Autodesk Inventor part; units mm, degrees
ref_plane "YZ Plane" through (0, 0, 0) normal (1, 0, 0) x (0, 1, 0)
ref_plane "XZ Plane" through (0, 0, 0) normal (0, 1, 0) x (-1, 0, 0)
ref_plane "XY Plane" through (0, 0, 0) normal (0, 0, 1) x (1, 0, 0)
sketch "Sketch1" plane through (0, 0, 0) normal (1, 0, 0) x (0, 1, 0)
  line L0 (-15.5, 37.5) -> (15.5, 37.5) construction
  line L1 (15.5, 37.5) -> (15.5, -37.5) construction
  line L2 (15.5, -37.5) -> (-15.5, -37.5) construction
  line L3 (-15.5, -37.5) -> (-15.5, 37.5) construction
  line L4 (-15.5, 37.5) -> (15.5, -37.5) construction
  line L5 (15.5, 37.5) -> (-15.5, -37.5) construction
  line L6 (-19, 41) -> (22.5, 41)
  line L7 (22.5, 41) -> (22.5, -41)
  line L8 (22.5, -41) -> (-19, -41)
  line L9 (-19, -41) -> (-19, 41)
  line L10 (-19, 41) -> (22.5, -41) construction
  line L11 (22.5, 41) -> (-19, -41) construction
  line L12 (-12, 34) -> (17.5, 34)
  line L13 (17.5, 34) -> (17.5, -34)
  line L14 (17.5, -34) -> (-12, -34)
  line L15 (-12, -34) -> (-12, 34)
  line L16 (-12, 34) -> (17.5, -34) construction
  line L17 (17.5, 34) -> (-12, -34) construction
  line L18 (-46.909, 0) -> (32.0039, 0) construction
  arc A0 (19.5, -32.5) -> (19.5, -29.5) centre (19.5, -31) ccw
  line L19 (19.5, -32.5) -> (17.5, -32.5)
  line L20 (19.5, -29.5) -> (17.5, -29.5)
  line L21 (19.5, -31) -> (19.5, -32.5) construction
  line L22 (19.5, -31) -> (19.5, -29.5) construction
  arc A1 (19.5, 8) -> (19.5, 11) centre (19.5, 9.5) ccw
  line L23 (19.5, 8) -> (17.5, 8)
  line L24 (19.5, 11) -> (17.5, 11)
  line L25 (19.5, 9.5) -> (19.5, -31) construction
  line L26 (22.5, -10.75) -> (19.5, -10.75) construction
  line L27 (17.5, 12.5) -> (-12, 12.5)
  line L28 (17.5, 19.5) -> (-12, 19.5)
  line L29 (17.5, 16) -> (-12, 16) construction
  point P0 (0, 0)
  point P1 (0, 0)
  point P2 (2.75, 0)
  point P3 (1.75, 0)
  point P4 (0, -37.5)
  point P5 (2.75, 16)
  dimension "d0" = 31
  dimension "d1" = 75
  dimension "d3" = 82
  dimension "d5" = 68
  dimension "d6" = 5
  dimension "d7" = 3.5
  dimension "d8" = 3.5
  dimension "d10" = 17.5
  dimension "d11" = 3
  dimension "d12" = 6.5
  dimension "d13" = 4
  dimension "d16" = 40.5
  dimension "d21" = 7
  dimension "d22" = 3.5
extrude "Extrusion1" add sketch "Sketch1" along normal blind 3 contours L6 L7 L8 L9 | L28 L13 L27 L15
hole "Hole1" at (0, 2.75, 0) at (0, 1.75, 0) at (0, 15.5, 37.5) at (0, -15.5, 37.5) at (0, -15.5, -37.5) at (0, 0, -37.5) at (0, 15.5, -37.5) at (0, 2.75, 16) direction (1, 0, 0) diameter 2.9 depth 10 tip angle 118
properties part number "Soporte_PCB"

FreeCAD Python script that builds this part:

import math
import FreeCAD as App
import Part
import Sketcher

V = App.Vector
Q = App.Units.Quantity

doc = App.newDocument("Part")
params = doc.addObject("Spreadsheet::Sheet", "Params")
for row, (alias, value) in enumerate([
    ("sketch1_radius", "1.5 mm"),
    ("sketch1_height", "82 mm"),
    ("sketch1_width", "41.5 mm"),
    ("pad1_length", "3 mm"),
    ("sketch2_diameter", "2.9 mm"),
    ("hole_diameter", "2.9 mm"),
    ("hole_depth", "10 mm"),
], start=1):
    params.set(f"A{row}", alias)
    params.set(f"B{row}", "=" + value)
    params.setAlias(f"B{row}", alias)

body = doc.addObject("PartDesign::Body", "Body")

# Sketch on YZ plane
sketch1 = body.newObject("Sketcher::SketchObject", "Sketch")
sketch1.AttachmentSupport = (doc.getObject("YZ_Plane"), [""])
sketch1.MapMode = "FlatFace"
sketch1.addGeometry(Part.LineSegment(V(22.5, 41, 0), V(-19, 41, 0)), False)
sketch1.addGeometry(Part.LineSegment(V(-19, 41, 0), V(-19, -41, 0)), False)
sketch1.addGeometry(Part.LineSegment(V(-19, -41, 0), V(22.5, -41, 0)), False)
sketch1.addGeometry(Part.LineSegment(V(22.5, -41, 0), V(22.5, 41, 0)), False)
sketch1.addGeometry(Part.LineSegment(V(-12, 19.5, 0), V(-12, 34, 0)), False)
sketch1.addGeometry(Part.LineSegment(V(-12, 34, 0), V(17.5, 34, 0)), False)
sketch1.addGeometry(Part.LineSegment(V(17.5, 34, 0), V(17.5, 19.5, 0)), False)
sketch1.addGeometry(Part.LineSegment(V(17.5, 19.5, 0), V(-12, 19.5, 0)), False)
sketch1.addGeometry(Part.LineSegment(V(-12, -34, 0), V(-12, 12.5, 0)), False)
sketch1.addGeometry(Part.LineSegment(V(-12, 12.5, 0), V(17.5, 12.5, 0)), False)
sketch1.addGeometry(Part.LineSegment(V(17.5, 12.5, 0), V(17.5, 11, 0)), False)
sketch1.addGeometry(Part.LineSegment(V(17.5, 11, 0), V(19.5, 11, 0)), False)
sketch1.addGeometry(Part.ArcOfCircle(Part.Circle(V(19.5, 9.5, 0), V(0, 0, 1), 1.5), math.radians(-90), math.radians(90)), False)
sketch1.addGeometry(Part.LineSegment(V(19.5, 8, 0), V(17.5, 8, 0)), False)
sketch1.addGeometry(Part.LineSegment(V(17.5, 8, 0), V(17.5, -29.5, 0)), False)
sketch1.addGeometry(Part.LineSegment(V(17.5, -29.5, 0), V(19.5, -29.5, 0)), False)
sketch1.addGeometry(Part.ArcOfCircle(Part.Circle(V(19.5, -31, 0), V(0, 0, 1), 1.5), math.radians(-90), math.radians(90)), False)
sketch1.addGeometry(Part.LineSegment(V(19.5, -32.5, 0), V(17.5, -32.5, 0)), False)
sketch1.addGeometry(Part.LineSegment(V(17.5, -32.5, 0), V(17.5, -34, 0)), False)
sketch1.addGeometry(Part.LineSegment(V(17.5, -34, 0), V(-12, -34, 0)), False)
sketch1.addConstraint(Sketcher.Constraint("Coincident", 0, 2, 1, 1))
sketch1.addConstraint(Sketcher.Constraint("Coincident", 1, 2, 2, 1))
sketch1.addConstraint(Sketcher.Constraint("Coincident", 2, 2, 3, 1))
sketch1.addConstraint(Sketcher.Constraint("Coincident", 3, 2, 0, 1))
sketch1.addConstraint(Sketcher.Constraint("Coincident", 4, 2, 5, 1))
sketch1.addConstraint(Sketcher.Constraint("Coincident", 5, 2, 6, 1))
sketch1.addConstraint(Sketcher.Constraint("Coincident", 6, 2, 7, 1))
sketch1.addConstraint(Sketcher.Constraint("Coincident", 7, 2, 4, 1))
sketch1.addConstraint(Sketcher.Constraint("Coincident", 8, 2, 9, 1))
sketch1.addConstraint(Sketcher.Constraint("Coincident", 9, 2, 10, 1))
sketch1.addConstraint(Sketcher.Constraint("Coincident", 10, 2, 11, 1))
sketch1.addConstraint(Sketcher.Constraint("Tangent", 11, 2, 12, 2))
sketch1.addConstraint(Sketcher.Constraint("Tangent", 12, 1, 13, 1))
sketch1.addConstraint(Sketcher.Constraint("Coincident", 13, 2, 14, 1))
sketch1.addConstraint(Sketcher.Constraint("Coincident", 14, 2, 15, 1))
sketch1.addConstraint(Sketcher.Constraint("Tangent", 15, 2, 16, 2))
sketch1.addConstraint(Sketcher.Constraint("Tangent", 16, 1, 17, 1))
sketch1.addConstraint(Sketcher.Constraint("Coincident", 17, 2, 18, 1))
sketch1.addConstraint(Sketcher.Constraint("Coincident", 18, 2, 19, 1))
sketch1.addConstraint(Sketcher.Constraint("Coincident", 19, 2, 8, 1))
sketch1.addConstraint(Sketcher.Constraint("Horizontal", 0))
sketch1.addConstraint(Sketcher.Constraint("Vertical", 1))
sketch1.addConstraint(Sketcher.Constraint("Horizontal", 2))
sketch1.addConstraint(Sketcher.Constraint("Vertical", 3))
sketch1.addConstraint(Sketcher.Constraint("Vertical", 4))
sketch1.addConstraint(Sketcher.Constraint("Horizontal", 5))
sketch1.addConstraint(Sketcher.Constraint("Vertical", 6))
sketch1.addConstraint(Sketcher.Constraint("Horizontal", 7))
sketch1.addConstraint(Sketcher.Constraint("Vertical", 8))
sketch1.addConstraint(Sketcher.Constraint("Horizontal", 9))
sketch1.addConstraint(Sketcher.Constraint("Vertical", 10))
sketch1.addConstraint(Sketcher.Constraint("Horizontal", 11))
sketch1.addConstraint(Sketcher.Constraint("Horizontal", 13))
sketch1.addConstraint(Sketcher.Constraint("Vertical", 14))
sketch1.addConstraint(Sketcher.Constraint("Horizontal", 15))
sketch1.addConstraint(Sketcher.Constraint("Horizontal", 17))
sketch1.addConstraint(Sketcher.Constraint("Vertical", 18))
sketch1.addConstraint(Sketcher.Constraint("Horizontal", 19))
sketch1.addConstraint(Sketcher.Constraint("Equal", 12, 16))
sketch1.addConstraint(Sketcher.Constraint("Symmetric", 5, 2, 18, 2, -1))
sketch1.addConstraint(Sketcher.Constraint("Vertical", 12, 3, 16, 3))
sketch1.addConstraint(Sketcher.Constraint("Vertical", 7, 2, 8, 2))
sketch1.addConstraint(Sketcher.Constraint("Vertical", 6, 2, 9, 2))
sketch1.addConstraint(Sketcher.Constraint("Vertical", 10, 2, 13, 2))
sketch1.addConstraint(Sketcher.Constraint("Equal", 10, 18))
sketch1.addConstraint(Sketcher.Constraint("Radius", 12, Q("1.5 mm")))
sketch1.addConstraint(Sketcher.Constraint("DistanceY", 1, 2, 1, 1, Q("82 mm")))
sketch1.addConstraint(Sketcher.Constraint("DistanceY", 16, 3, -1, 1, Q("31 mm")))
sketch1.addConstraint(Sketcher.Constraint("DistanceY", 1, 2, 16, 3, Q("10 mm")))
sketch1.addConstraint(Sketcher.Constraint("DistanceX", 16, 3, 2, 2, Q("3 mm")))
sketch1.addConstraint(Sketcher.Constraint("DistanceX", 0, 2, 4, 2, Q("7 mm")))
sketch1.addConstraint(Sketcher.Constraint("DistanceY", 4, 2, 0, 2, Q("7 mm")))
sketch1.addConstraint(Sketcher.Constraint("DistanceX", 5, 2, 3, 2, Q("5 mm")))
sketch1.addConstraint(Sketcher.Constraint("DistanceY", 12, 3, 6, 2, Q("10 mm")))
sketch1.addConstraint(Sketcher.Constraint("DistanceX", -1, 1, 5, 2, Q("17.5 mm")))
sketch1.addConstraint(Sketcher.Constraint("DistanceY", 16, 3, 12, 3, Q("40.5 mm")))
sketch1.addConstraint(Sketcher.Constraint("DistanceX", 0, 2, 0, 1, Q("41.5 mm")))
sketch1.setExpression("Constraints[45]", "Params.sketch1_radius")
sketch1.setExpression("Constraints[46]", "Params.sketch1_height")
sketch1.setExpression("Constraints[56]", "Params.sketch1_width")
pad1 = body.newObject("PartDesign::Pad", "Pad")
pad1.Profile = sketch1
pad1.setExpression("Length", "Params.pad1_length")

# Sketch on YZ plane
sketch2 = body.newObject("Sketcher::SketchObject", "Sketch001")
sketch2.AttachmentSupport = (doc.getObject("YZ_Plane"), [""])
sketch2.MapMode = "FlatFace"
sketch2.addGeometry(Part.Circle(V(2.8, 0, 0), V(0, 0, 1), 1.4), False)
sketch2.addGeometry(Part.Circle(V(1.8, 0, 0), V(0, 0, 1), 1.4), False)
sketch2.addGeometry(Part.Circle(V(15.5, 37.5, 0), V(0, 0, 1), 1.4), False)
sketch2.addGeometry(Part.Circle(V(-15.5, 37.5, 0), V(0, 0, 1), 1.4), False)
sketch2.addGeometry(Part.Circle(V(-15.5, -37.5, 0), V(0, 0, 1), 1.4), False)
sketch2.addGeometry(Part.Circle(V(0, -37.5, 0), V(0, 0, 1), 1.4), False)
sketch2.addGeometry(Part.Circle(V(15.5, -37.5, 0), V(0, 0, 1), 1.4), False)
sketch2.addGeometry(Part.Circle(V(2.8, 16, 0), V(0, 0, 1), 1.4), False)
sketch2.addConstraint(Sketcher.Constraint("Equal", 0, 1))
sketch2.addConstraint(Sketcher.Constraint("Equal", 1, 2))
sketch2.addConstraint(Sketcher.Constraint("Equal", 2, 3))
sketch2.addConstraint(Sketcher.Constraint("Equal", 3, 4))
sketch2.addConstraint(Sketcher.Constraint("Equal", 4, 5))
sketch2.addConstraint(Sketcher.Constraint("Equal", 5, 6))
sketch2.addConstraint(Sketcher.Constraint("Equal", 6, 7))
sketch2.addConstraint(Sketcher.Constraint("Symmetric", 2, 3, 4, 3, -1, 1))
sketch2.addConstraint(Sketcher.Constraint("Symmetric", 3, 3, 6, 3, -1, 1))
sketch2.addConstraint(Sketcher.Constraint("Symmetric", 2, 3, 3, 3, -2))
sketch2.addConstraint(Sketcher.Constraint("PointOnObject", 0, 3, -1))
sketch2.addConstraint(Sketcher.Constraint("PointOnObject", 1, 3, -1))
sketch2.addConstraint(Sketcher.Constraint("PointOnObject", 5, 3, -2))
sketch2.addConstraint(Sketcher.Constraint("Horizontal", 4, 3, 5, 3))
sketch2.addConstraint(Sketcher.Constraint("Vertical", 0, 3, 7, 3))
sketch2.addConstraint(Sketcher.Constraint("Diameter", 0, Q("2.9 mm")))
sketch2.addConstraint(Sketcher.Constraint("DistanceY", -1, 1, 7, 3, Q("16 mm")))
sketch2.addConstraint(Sketcher.Constraint("DistanceX", 1, 3, 0, 3, Q("1 mm")))
sketch2.addConstraint(Sketcher.Constraint("DistanceX", 3, 3, 2, 3, Q("31 mm")))
sketch2.addConstraint(Sketcher.Constraint("DistanceY", 4, 3, 3, 3, Q("75 mm")))
sketch2.addConstraint(Sketcher.Constraint("DistanceX", -1, 1, 0, 3, Q("2.75 mm")))
sketch2.setExpression("Constraints[15]", "Params.sketch2_diameter")
doc.recompute()
hole = body.newObject("PartDesign::Hole", "Hole")
hole.Profile = sketch2
hole.ThreadType = "None"
hole.setExpression("Diameter", "Params.hole_diameter")
hole.DepthType = "Dimension"
hole.setExpression("Depth", "Params.hole_depth")
hole.DrillPoint = "Angled"
hole.DrillPointAngle = 118
hole.Reversed = True

doc.recompute()
